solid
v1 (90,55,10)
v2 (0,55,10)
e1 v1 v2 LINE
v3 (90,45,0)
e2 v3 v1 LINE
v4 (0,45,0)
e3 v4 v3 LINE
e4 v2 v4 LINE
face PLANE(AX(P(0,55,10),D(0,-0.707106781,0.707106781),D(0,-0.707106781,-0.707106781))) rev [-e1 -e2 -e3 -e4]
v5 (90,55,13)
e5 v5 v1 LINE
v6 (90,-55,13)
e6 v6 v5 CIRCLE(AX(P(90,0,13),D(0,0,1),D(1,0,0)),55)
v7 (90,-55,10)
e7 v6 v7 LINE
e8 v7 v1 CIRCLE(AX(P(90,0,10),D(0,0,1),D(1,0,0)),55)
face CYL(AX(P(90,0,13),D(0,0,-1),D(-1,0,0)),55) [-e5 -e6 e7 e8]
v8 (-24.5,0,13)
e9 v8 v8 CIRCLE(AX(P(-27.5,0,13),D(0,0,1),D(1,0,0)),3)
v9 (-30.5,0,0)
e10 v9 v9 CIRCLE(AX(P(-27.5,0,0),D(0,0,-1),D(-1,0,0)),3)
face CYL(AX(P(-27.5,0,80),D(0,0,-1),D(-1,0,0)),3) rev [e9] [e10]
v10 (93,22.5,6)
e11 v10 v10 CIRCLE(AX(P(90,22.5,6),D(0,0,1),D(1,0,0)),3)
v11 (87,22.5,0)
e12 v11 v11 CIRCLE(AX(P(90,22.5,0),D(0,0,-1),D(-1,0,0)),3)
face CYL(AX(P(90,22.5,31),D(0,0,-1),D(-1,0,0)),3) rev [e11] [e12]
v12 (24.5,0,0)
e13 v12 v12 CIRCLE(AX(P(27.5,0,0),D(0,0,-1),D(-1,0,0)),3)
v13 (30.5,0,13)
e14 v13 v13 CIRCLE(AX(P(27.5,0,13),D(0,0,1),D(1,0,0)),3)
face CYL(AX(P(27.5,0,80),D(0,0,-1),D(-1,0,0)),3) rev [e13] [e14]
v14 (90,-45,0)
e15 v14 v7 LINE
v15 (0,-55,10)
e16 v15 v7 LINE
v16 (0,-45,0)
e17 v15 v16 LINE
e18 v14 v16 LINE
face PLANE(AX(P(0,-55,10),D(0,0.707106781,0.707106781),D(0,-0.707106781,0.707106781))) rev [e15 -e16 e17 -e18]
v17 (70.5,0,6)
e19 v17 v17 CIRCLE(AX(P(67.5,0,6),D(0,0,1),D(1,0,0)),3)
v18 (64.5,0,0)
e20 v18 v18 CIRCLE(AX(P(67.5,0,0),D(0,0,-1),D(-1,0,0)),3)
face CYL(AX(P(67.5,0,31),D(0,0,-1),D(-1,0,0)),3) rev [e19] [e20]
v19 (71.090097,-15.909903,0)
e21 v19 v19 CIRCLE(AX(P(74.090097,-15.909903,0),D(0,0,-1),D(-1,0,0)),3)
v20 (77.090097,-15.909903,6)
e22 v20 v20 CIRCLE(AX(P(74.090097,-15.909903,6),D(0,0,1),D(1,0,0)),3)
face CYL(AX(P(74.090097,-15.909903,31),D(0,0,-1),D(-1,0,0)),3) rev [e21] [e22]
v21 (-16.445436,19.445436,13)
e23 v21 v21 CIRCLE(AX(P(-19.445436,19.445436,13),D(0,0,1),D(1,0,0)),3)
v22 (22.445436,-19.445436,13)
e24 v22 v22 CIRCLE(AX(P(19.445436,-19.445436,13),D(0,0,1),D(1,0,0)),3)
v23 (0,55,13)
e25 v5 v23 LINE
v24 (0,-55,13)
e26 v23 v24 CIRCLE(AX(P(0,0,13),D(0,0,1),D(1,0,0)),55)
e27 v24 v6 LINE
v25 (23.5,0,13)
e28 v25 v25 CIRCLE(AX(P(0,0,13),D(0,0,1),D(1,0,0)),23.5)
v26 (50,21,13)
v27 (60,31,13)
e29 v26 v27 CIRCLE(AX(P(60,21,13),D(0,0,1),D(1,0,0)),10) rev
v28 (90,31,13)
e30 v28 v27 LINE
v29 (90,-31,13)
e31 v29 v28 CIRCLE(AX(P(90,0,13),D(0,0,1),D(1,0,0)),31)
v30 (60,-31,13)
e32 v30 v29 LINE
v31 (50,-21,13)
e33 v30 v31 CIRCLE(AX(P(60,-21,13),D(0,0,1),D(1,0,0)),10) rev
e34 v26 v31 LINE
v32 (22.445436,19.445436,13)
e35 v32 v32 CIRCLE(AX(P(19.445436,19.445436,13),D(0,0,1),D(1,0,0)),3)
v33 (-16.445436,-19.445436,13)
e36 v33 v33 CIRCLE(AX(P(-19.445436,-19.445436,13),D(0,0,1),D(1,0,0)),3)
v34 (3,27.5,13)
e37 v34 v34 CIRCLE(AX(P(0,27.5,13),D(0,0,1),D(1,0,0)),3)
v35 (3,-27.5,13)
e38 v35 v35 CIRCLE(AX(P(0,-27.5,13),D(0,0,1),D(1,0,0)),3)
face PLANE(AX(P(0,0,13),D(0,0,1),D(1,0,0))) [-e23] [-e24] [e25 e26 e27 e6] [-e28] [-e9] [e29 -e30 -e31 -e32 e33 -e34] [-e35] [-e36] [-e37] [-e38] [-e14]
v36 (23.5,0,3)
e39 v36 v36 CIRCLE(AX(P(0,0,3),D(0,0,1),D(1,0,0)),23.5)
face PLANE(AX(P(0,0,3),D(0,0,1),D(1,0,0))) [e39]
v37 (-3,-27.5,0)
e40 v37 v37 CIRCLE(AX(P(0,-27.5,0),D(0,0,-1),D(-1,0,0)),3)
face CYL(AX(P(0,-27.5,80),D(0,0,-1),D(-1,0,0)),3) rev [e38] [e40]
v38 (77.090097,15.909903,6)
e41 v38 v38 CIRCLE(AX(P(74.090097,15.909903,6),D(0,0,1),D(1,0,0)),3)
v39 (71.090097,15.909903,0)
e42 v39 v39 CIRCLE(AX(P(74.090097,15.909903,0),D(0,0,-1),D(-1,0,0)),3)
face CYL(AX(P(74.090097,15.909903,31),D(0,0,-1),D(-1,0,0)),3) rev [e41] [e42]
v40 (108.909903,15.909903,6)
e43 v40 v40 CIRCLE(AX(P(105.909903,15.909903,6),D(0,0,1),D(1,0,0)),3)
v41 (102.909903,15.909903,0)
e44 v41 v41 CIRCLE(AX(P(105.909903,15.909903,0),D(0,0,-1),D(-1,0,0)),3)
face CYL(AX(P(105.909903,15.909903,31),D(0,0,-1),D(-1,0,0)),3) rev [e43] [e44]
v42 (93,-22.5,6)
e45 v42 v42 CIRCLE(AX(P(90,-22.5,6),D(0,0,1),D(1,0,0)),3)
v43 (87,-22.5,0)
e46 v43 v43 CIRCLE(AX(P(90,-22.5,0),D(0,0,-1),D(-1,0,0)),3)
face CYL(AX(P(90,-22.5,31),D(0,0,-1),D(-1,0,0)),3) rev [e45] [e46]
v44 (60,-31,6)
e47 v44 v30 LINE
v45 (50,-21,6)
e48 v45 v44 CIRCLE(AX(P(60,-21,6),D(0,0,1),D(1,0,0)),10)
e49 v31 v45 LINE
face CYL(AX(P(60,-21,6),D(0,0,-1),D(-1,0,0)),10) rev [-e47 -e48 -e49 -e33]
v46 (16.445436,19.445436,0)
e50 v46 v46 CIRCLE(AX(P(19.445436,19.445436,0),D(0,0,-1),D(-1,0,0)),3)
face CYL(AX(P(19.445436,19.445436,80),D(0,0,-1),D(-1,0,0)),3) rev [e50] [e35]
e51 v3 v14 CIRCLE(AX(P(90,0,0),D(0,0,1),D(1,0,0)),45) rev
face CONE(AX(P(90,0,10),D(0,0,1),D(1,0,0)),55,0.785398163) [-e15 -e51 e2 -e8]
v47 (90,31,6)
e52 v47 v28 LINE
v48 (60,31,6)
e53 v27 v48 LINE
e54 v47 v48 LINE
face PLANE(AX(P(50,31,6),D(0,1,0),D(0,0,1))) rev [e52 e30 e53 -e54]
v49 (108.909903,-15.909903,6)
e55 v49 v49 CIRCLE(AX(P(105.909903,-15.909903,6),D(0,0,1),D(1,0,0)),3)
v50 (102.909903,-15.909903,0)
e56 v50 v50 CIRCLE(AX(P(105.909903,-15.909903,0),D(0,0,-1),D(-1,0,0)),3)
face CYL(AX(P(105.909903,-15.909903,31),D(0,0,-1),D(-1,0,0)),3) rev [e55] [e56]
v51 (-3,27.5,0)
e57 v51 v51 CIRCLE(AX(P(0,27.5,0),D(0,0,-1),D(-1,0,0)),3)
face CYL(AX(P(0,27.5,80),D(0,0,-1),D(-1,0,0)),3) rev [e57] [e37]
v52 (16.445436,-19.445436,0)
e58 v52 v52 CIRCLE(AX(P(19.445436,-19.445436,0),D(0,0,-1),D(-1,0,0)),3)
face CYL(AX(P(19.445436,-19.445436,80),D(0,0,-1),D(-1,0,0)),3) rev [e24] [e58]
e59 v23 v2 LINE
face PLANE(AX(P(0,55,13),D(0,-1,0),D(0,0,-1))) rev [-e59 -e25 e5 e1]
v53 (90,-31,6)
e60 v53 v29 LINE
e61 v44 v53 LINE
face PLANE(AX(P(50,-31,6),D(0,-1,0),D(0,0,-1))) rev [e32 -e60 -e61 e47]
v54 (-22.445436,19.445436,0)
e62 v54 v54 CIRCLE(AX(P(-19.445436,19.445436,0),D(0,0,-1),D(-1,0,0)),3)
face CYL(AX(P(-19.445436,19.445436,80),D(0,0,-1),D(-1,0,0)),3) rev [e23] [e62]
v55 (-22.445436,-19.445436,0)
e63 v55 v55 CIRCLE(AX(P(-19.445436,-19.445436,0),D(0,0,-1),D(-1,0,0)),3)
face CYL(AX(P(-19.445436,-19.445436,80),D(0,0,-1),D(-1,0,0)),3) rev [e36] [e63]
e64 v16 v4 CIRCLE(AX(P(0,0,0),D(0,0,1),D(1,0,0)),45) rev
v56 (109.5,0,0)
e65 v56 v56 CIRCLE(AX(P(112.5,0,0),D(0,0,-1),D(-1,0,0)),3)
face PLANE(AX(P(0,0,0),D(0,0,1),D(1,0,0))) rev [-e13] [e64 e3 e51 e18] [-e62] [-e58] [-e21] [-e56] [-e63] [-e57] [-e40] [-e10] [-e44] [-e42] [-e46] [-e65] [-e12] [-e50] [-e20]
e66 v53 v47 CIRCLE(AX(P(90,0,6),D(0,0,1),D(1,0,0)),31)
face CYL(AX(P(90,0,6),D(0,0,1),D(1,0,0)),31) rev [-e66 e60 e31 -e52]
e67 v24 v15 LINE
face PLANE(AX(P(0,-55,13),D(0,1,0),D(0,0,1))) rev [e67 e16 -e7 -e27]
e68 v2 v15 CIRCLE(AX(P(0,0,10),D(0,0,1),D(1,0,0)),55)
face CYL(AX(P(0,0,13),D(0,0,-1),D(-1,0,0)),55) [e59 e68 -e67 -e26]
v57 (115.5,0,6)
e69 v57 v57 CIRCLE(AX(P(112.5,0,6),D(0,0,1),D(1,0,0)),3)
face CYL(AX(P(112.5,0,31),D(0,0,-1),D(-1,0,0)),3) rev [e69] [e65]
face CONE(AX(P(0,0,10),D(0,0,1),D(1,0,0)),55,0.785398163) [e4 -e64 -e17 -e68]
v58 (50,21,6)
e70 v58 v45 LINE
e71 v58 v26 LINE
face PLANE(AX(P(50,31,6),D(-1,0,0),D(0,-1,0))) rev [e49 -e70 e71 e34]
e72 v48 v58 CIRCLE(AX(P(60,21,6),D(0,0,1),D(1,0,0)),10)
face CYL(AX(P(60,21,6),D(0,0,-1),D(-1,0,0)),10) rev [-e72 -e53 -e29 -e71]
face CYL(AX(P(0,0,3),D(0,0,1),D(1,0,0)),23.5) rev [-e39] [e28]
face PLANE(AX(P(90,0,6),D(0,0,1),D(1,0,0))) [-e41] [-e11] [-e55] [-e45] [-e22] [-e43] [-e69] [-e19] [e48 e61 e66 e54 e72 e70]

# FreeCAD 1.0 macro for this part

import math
import FreeCAD as App
import Part
import Sketcher
Q = App.Units.Quantity


def edges_at(feature, points):
    """Names of the edges that pass closest to the given points."""
    edges = feature.Shape.Edges
    near = lambda p: min(range(len(edges)), key=lambda i: edges[i].distToShape(Part.Vertex(*p))[0])
    return sorted({f"Edge{near(p) + 1}" for p in points})

doc = App.newDocument("Part")
body = doc.addObject("PartDesign::Body", "Body")

# Sketch on XY plane
sketch1 = body.newObject("Sketcher::SketchObject", "Sketch")
sketch1.AttachmentSupport = (doc.getObject("XY_Plane"), [""])
sketch1.MapMode = "FlatFace"
sketch1.addGeometry([
    Part.LineSegment(App.Vector(90, 55, 0), App.Vector(0, 55, 0)),
    Part.ArcOfCircle(Part.Circle(App.Vector(0, 0, 0), App.Vector(0, 0, 1), 55), math.radians(90), math.radians(270)),
    Part.LineSegment(App.Vector(0, -55, 0), App.Vector(90, -55, 0)),
    Part.ArcOfCircle(Part.Circle(App.Vector(90, 0, 0), App.Vector(0, 0, 1), 55), math.radians(-90), math.radians(90)),
], False)
sketch1.addConstraint([
    Sketcher.Constraint("Tangent", 0, 2, 1, 1),
    Sketcher.Constraint("Tangent", 1, 2, 2, 1),
    Sketcher.Constraint("Tangent", 2, 2, 3, 1),
    Sketcher.Constraint("Tangent", 3, 2, 0, 1),
    Sketcher.Constraint("Horizontal", 0),
    Sketcher.Constraint("Horizontal", 2),
    Sketcher.Constraint("Coincident", 1, 3, -1, 1),
    Sketcher.Constraint("Radius", 1, Q("55 mm")),
    Sketcher.Constraint("DistanceX", 0, 2, 0, 1, Q("90 mm")),
])
pad1 = body.newObject("PartDesign::Pad", "Pad")
pad1.Profile = sketch1
pad1.Length = 13

# Sketch on XY plane
sketch2 = body.newObject("Sketcher::SketchObject", "Sketch001")
sketch2.AttachmentSupport = (doc.getObject("XY_Plane"), [""])
sketch2.MapMode = "FlatFace"
sketch2.AttachmentOffset = App.Placement(App.Vector(0, 0, 13), App.Rotation())
sketch2.addGeometry(Part.Circle(App.Vector(90, 0, 0), App.Vector(0, 0, 1), 31), False)
sketch2.addConstraint([
    Sketcher.Constraint("PointOnObject", 0, 3, -1),
    Sketcher.Constraint("Diameter", 0, Q("62 mm")),
    Sketcher.Constraint("DistanceX", -1, 1, 0, 3, Q("90 mm")),
])
pocket1 = body.newObject("PartDesign::Pocket", "Pocket")
pocket1.Profile = sketch2
pocket1.Length = 7

# Sketch on XY plane
sketch3 = body.newObject("Sketcher::SketchObject", "Sketch002")
sketch3.AttachmentSupport = (doc.getObject("XY_Plane"), [""])
sketch3.MapMode = "FlatFace"
sketch3.addGeometry([
    Part.Circle(App.Vector(90, 22.5, 0), App.Vector(0, 0, 1), 3),  # 0
    Part.Circle(App.Vector(74.1, 15.9, 0), App.Vector(0, 0, 1), 3),  # 1
    Part.Circle(App.Vector(67.5, 0, 0), App.Vector(0, 0, 1), 3),  # 2
    Part.Circle(App.Vector(74.1, -15.9, 0), App.Vector(0, 0, 1), 3),  # 3
    Part.Circle(App.Vector(90, -22.5, 0), App.Vector(0, 0, 1), 3),  # 4
    Part.Circle(App.Vector(105.9, -15.9, 0), App.Vector(0, 0, 1), 3),  # 5
    Part.Circle(App.Vector(112.5, 0, 0), App.Vector(0, 0, 1), 3),  # 6
    Part.Circle(App.Vector(105.9, 15.9, 0), App.Vector(0, 0, 1), 3),  # 7
], False)
sketch3.addConstraint([
    Sketcher.Constraint("Equal", 0, 1),
    Sketcher.Constraint("Equal", 1, 2),
    Sketcher.Constraint("Equal", 2, 3),
    Sketcher.Constraint("Equal", 3, 4),
    Sketcher.Constraint("Equal", 4, 5),
    Sketcher.Constraint("Equal", 5, 6),
    Sketcher.Constraint("Equal", 6, 7),
    Sketcher.Constraint("Symmetric", 1, 3, 3, 3, -1),
    Sketcher.Constraint("Symmetric", 0, 3, 4, 3, -1),
    Sketcher.Constraint("Symmetric", 5, 3, 7, 3, -1),
    Sketcher.Constraint("PointOnObject", 2, 3, -1),
    Sketcher.Constraint("PointOnObject", 6, 3, -1),
    Sketcher.Constraint("Horizontal", 3, 3, 5, 3),
    Sketcher.Constraint("Diameter", 0, Q("6 mm")),
    Sketcher.Constraint("DistanceX", -1, 1, 0, 3, Q("90 mm")),
    Sketcher.Constraint("DistanceY", 4, 3, 0, 3, Q("45 mm")),
    Sketcher.Constraint("DistanceX", -1, 1, 2, 3, Q("67.5 mm")),
    Sketcher.Constraint("DistanceX", -1, 1, 6, 3, Q("112.5 mm")),
    Sketcher.Constraint("DistanceX", -1, 1, 1, 3, Q("74.090097 mm")),
    Sketcher.Constraint("DistanceY", -1, 1, 1, 3, Q("15.909903 mm")),
    Sketcher.Constraint("DistanceX", -1, 1, 5, 3, Q("105.909903 mm")),
])
pocket2 = body.newObject("PartDesign::Pocket", "Pocket001")
pocket2.Profile = sketch3
pocket2.Length = 31
pocket2.Reversed = True
doc.recompute()

chamfer = body.newObject("PartDesign::Chamfer", "Chamfer")
chamfer.Base = (pocket2, edges_at(pocket2, [
    (45, 55, 0),
    (145, 0, 0),
    (45, -55, 0),
    (-55, 0, 0),
]))
chamfer.Size = 10

# Sketch on XY plane
sketch4 = body.newObject("Sketcher::SketchObject", "Sketch003")
sketch4.AttachmentSupport = (doc.getObject("XY_Plane"), [""])
sketch4.MapMode = "FlatFace"
sketch4.AttachmentOffset = App.Placement(App.Vector(0, 0, 13), App.Rotation())
sketch4.addGeometry([
    Part.LineSegment(App.Vector(90, 31, 0), App.Vector(50, 31, 0)),
    Part.LineSegment(App.Vector(50, 31, 0), App.Vector(50, -31, 0)),
    Part.LineSegment(App.Vector(50, -31, 0), App.Vector(90, -31, 0)),
    Part.ArcOfCircle(Part.Circle(App.Vector(90, 0, 0), App.Vector(0, 0, 1), 31), math.radians(-90), math.radians(90)),
], False)
sketch4.addConstraint([
    Sketcher.Constraint("Coincident", 0, 2, 1, 1),
    Sketcher.Constraint("Coincident", 1, 2, 2, 1),
    Sketcher.Constraint("Tangent", 2, 2, 3, 1),
    Sketcher.Constraint("Tangent", 3, 2, 0, 1),
    Sketcher.Constraint("Horizontal", 0),
    Sketcher.Constraint("Vertical", 1),
    Sketcher.Constraint("Horizontal", 2),
    Sketcher.Constraint("PointOnObject", 3, 3, -1),
    Sketcher.Constraint("Radius", 3, Q("31 mm")),
    Sketcher.Constraint("DistanceX", 0, 2, 0, 1, Q("40 mm")),
    Sketcher.Constraint("DistanceX", -1, 1, 3, 3, Q("90 mm")),
])
pocket3 = body.newObject("PartDesign::Pocket", "Pocket002")
pocket3.Profile = sketch4
pocket3.Length = 7

# Sketch on XY plane
sketch5 = body.newObject("Sketcher::SketchObject", "Sketch004")
sketch5.AttachmentSupport = (doc.getObject("XY_Plane"), [""])
sketch5.MapMode = "FlatFace"
sketch5.addGeometry([
    Part.Circle(App.Vector(-19.4, 19.4, 0), App.Vector(0, 0, 1), 3),  # 0
    Part.Circle(App.Vector(-27.5, 0, 0), App.Vector(0, 0, 1), 3),  # 1
    Part.Circle(App.Vector(-19.4, -19.4, 0), App.Vector(0, 0, 1), 3),  # 2
    Part.Circle(App.Vector(0, -27.5, 0), App.Vector(0, 0, 1), 3),  # 3
    Part.Circle(App.Vector(0, 27.5, 0), App.Vector(0, 0, 1), 3),  # 4
    Part.Circle(App.Vector(19.4, -19.4, 0), App.Vector(0, 0, 1), 3),  # 5
    Part.Circle(App.Vector(27.5, 0, 0), App.Vector(0, 0, 1), 3),  # 6
    Part.Circle(App.Vector(19.4, 19.4, 0), App.Vector(0, 0, 1), 3),  # 7
], False)
sketch5.addConstraint([
    Sketcher.Constraint("Equal", 0, 1),
    Sketcher.Constraint("Equal", 1, 2),
    Sketcher.Constraint("Equal", 2, 3),
    Sketcher.Constraint("Equal", 3, 4),
    Sketcher.Constraint("Equal", 4, 5),
    Sketcher.Constraint("Equal", 5, 6),
    Sketcher.Constraint("Equal", 6, 7),
    Sketcher.Constraint("Symmetric", 3, 3, 4, 3, -1, 1),
    Sketcher.Constraint("Symmetric", 0, 3, 5, 3, -1, 1),
    Sketcher.Constraint("Symmetric", 1, 3, 6, 3, -1, 1),
    Sketcher.Constraint("Symmetric", 2, 3, 7, 3, -1, 1),
    Sketcher.Constraint("Symmetric", 2, 3, 5, 3, -2),
    Sketcher.Constraint("PointOnObject", 1, 3, -1),
    Sketcher.Constraint("PointOnObject", 3, 3, -2),
    Sketcher.Constraint("Diameter", 0, Q("6 mm")),
    Sketcher.Constraint("DistanceY", 3, 3, 4, 3, Q("55 mm")),
    Sketcher.Constraint("DistanceX", 1, 3, -1, 1, Q("27.5 mm")),
    Sketcher.Constraint("DistanceX", 0, 3, -1, 1, Q("19.445436 mm")),
    Sketcher.Constraint("DistanceY", -1, 1, 0, 3, Q("19.445436 mm")),
])
pocket4 = body.newObject("PartDesign::Pocket", "Pocket003")
pocket4.Profile = sketch5
pocket4.Length = 80
pocket4.Reversed = True
doc.recompute()

fillet = body.newObject("PartDesign::Fillet", "Fillet")
fillet.Base = (pocket4, edges_at(pocket4, [(50, -31, 9.5), (50, 31, 9.5)]))
fillet.Radius = 10

# Sketch on XY plane
sketch6 = body.newObject("Sketcher::SketchObject", "Sketch005")
sketch6.AttachmentSupport = (doc.getObject("XY_Plane"), [""])
sketch6.MapMode = "FlatFace"
sketch6.AttachmentOffset = App.Placement(App.Vector(0, 0, 13), App.Rotation())
sketch6.addGeometry(Part.Circle(App.Vector(0, 0, 0), App.Vector(0, 0, 1), 24), False)
sketch6.addConstraint([
    Sketcher.Constraint("Coincident", 0, 3, -1, 1),
    Sketcher.Constraint("Diameter", 0, Q("47 mm")),
])
pocket5 = body.newObject("PartDesign::Pocket", "Pocket004")
pocket5.Profile = sketch6
pocket5.Length = 10

doc.recompute()
